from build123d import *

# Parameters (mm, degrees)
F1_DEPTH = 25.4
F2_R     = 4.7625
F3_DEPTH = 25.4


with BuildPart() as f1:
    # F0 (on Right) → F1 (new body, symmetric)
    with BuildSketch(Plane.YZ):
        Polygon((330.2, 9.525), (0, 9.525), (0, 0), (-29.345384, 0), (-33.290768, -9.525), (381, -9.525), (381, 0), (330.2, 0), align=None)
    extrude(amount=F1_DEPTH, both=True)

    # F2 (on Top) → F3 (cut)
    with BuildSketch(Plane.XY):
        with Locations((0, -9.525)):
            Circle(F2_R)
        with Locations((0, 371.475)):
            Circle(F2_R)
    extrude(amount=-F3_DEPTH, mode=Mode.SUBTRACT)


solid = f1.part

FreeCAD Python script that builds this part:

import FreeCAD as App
import Part
import Sketcher

V = App.Vector
Q = App.Units.Quantity


def add_polygon(sketch, points):
    """Adds a closed chain of lines whose ends are joined by coincident constraints."""
    first, n = sketch.GeometryCount, len(points)
    for a, b in zip(points, points[1:] + points[:1]):
        sketch.addGeometry(Part.LineSegment(App.Vector(*a, 0), App.Vector(*b, 0)), False)
    for i in range(n):
        sketch.addConstraint(Sketcher.Constraint("Coincident", first + i, 2, first + (i + 1) % n, 1))

doc = App.newDocument("Part")
body = doc.addObject("PartDesign::Body", "Body")

sketch1 = body.newObject("Sketcher::SketchObject", "Sketch")
sketch1.AttachmentSupport = (doc.getObject("YZ_Plane"), [""])
sketch1.MapMode = "FlatFace"
add_polygon(sketch1, [(330, 10), (0, 10), (0, 0), (-29, 0), (-33, -10), (381, -10), (381, 0), (330, 0)])
sketch1.addConstraint([
    Sketcher.Constraint("Horizontal", 0),
    Sketcher.Constraint("Vertical", 1),
    Sketcher.Constraint("Horizontal", 2),
    Sketcher.Constraint("Horizontal", 4),
    Sketcher.Constraint("Vertical", 5),
    Sketcher.Constraint("Horizontal", 6),
    Sketcher.Constraint("Vertical", 7),
    Sketcher.Constraint("Coincident", 1, 2, -1, 1),
    Sketcher.Constraint("PointOnObject", 5, 2, -1),
    Sketcher.Constraint("Equal", 1, 5),
    Sketcher.Constraint("DistanceX", 0, 2, 0, 1, Q("13 in")),
    Sketcher.Constraint("DistanceX", 6, 2, 6, 1, Q("2 in")),
    Sketcher.Constraint("Angle", 3, Q("-112.499999 deg")),
    Sketcher.Constraint("DistanceY", 1, 2, 1, 1, Q("0.375 in")),
    Sketcher.Constraint("DistanceX", 4, 1, 4, 2, Q("414.290768 mm")),
])
pad1 = body.newObject("PartDesign::Pad", "Pad")
pad1.Profile = sketch1
pad1.Length = Q("2 in")
pad1.Midplane = True

sketch2 = body.newObject("Sketcher::SketchObject", "Sketch001")
sketch2.AttachmentSupport = (doc.getObject("XY_Plane"), [""])
sketch2.MapMode = "FlatFace"
sketch2.addGeometry([
    Part.Circle(V(0, -9.5, 0), V(0, 0, 1), 4.8),
    Part.Circle(V(0, 371.5, 0), V(0, 0, 1), 4.8),
], False)
sketch2.addConstraint([
    Sketcher.Constraint("Equal", 0, 1),
    Sketcher.Constraint("PointOnObject", 0, 3, -2),
    Sketcher.Constraint("PointOnObject", 1, 3, -2),
    Sketcher.Constraint("Diameter", 0, Q("0.375 in")),
    Sketcher.Constraint("DistanceY", 0, 3, 1, 3, Q("15 in")),
    Sketcher.Constraint("DistanceY", 0, 3, -1, 1, Q("0.375 in")),
])
pocket1 = body.newObject("PartDesign::Pocket", "Pocket")
pocket1.Profile = sketch2
pocket1.Length = Q("1 in")

doc.recompute()
